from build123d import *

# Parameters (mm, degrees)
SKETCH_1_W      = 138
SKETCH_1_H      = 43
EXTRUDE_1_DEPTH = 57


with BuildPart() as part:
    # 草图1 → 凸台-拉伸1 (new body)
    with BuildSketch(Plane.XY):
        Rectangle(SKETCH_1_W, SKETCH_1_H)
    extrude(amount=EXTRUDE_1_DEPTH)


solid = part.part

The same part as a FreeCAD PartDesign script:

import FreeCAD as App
import Part
import Sketcher
from FreeCAD import Vector
Q = App.Units.Quantity


def add_polygon(sketch, points):
    """Adds a closed chain of lines whose ends are joined by coincident constraints."""
    first, n = sketch.GeometryCount, len(points)
    for a, b in zip(points, points[1:] + points[:1]):
        sketch.addGeometry(Part.LineSegment(App.Vector(*a, 0), App.Vector(*b, 0)), False)
    for i in range(n):
        sketch.addConstraint(Sketcher.Constraint("Coincident", first + i, 2, first + (i + 1) % n, 1))

doc = App.newDocument("Part")
body = doc.addObject("PartDesign::Body", "Body")

# Sketch on XY plane
sketch1 = doc.addObject("Sketcher::SketchObject", "Sketch")
body.addObject(sketch1)
sketch1.AttachmentSupport = (doc.XY_Plane, [""])
sketch1.MapMode = "FlatFace"
add_polygon(sketch1, [(-69, 21.5), (-69, -21.5), (69, -21.5), (69, 21.5)])  # lines 0-3
sketch1.addConstraint([
    Sketcher.Constraint("Vertical", 0),
    Sketcher.Constraint("Horizontal", 1),
    Sketcher.Constraint("Vertical", 2),
    Sketcher.Constraint("Horizontal", 3),
    Sketcher.Constraint("Symmetric", 0, 2, 2, 2, -1, 1),
    Sketcher.Constraint("DistanceX", 1, 1, 1, 2, Q("138 mm")),
    Sketcher.Constraint("DistanceY", 0, 2, 0, 1, Q("43 mm")),
])
pad1 = doc.addObject("PartDesign::Pad", "Pad")
body.addObject(pad1)
pad1.Profile = sketch1
pad1.Length = 57

doc.recompute()
